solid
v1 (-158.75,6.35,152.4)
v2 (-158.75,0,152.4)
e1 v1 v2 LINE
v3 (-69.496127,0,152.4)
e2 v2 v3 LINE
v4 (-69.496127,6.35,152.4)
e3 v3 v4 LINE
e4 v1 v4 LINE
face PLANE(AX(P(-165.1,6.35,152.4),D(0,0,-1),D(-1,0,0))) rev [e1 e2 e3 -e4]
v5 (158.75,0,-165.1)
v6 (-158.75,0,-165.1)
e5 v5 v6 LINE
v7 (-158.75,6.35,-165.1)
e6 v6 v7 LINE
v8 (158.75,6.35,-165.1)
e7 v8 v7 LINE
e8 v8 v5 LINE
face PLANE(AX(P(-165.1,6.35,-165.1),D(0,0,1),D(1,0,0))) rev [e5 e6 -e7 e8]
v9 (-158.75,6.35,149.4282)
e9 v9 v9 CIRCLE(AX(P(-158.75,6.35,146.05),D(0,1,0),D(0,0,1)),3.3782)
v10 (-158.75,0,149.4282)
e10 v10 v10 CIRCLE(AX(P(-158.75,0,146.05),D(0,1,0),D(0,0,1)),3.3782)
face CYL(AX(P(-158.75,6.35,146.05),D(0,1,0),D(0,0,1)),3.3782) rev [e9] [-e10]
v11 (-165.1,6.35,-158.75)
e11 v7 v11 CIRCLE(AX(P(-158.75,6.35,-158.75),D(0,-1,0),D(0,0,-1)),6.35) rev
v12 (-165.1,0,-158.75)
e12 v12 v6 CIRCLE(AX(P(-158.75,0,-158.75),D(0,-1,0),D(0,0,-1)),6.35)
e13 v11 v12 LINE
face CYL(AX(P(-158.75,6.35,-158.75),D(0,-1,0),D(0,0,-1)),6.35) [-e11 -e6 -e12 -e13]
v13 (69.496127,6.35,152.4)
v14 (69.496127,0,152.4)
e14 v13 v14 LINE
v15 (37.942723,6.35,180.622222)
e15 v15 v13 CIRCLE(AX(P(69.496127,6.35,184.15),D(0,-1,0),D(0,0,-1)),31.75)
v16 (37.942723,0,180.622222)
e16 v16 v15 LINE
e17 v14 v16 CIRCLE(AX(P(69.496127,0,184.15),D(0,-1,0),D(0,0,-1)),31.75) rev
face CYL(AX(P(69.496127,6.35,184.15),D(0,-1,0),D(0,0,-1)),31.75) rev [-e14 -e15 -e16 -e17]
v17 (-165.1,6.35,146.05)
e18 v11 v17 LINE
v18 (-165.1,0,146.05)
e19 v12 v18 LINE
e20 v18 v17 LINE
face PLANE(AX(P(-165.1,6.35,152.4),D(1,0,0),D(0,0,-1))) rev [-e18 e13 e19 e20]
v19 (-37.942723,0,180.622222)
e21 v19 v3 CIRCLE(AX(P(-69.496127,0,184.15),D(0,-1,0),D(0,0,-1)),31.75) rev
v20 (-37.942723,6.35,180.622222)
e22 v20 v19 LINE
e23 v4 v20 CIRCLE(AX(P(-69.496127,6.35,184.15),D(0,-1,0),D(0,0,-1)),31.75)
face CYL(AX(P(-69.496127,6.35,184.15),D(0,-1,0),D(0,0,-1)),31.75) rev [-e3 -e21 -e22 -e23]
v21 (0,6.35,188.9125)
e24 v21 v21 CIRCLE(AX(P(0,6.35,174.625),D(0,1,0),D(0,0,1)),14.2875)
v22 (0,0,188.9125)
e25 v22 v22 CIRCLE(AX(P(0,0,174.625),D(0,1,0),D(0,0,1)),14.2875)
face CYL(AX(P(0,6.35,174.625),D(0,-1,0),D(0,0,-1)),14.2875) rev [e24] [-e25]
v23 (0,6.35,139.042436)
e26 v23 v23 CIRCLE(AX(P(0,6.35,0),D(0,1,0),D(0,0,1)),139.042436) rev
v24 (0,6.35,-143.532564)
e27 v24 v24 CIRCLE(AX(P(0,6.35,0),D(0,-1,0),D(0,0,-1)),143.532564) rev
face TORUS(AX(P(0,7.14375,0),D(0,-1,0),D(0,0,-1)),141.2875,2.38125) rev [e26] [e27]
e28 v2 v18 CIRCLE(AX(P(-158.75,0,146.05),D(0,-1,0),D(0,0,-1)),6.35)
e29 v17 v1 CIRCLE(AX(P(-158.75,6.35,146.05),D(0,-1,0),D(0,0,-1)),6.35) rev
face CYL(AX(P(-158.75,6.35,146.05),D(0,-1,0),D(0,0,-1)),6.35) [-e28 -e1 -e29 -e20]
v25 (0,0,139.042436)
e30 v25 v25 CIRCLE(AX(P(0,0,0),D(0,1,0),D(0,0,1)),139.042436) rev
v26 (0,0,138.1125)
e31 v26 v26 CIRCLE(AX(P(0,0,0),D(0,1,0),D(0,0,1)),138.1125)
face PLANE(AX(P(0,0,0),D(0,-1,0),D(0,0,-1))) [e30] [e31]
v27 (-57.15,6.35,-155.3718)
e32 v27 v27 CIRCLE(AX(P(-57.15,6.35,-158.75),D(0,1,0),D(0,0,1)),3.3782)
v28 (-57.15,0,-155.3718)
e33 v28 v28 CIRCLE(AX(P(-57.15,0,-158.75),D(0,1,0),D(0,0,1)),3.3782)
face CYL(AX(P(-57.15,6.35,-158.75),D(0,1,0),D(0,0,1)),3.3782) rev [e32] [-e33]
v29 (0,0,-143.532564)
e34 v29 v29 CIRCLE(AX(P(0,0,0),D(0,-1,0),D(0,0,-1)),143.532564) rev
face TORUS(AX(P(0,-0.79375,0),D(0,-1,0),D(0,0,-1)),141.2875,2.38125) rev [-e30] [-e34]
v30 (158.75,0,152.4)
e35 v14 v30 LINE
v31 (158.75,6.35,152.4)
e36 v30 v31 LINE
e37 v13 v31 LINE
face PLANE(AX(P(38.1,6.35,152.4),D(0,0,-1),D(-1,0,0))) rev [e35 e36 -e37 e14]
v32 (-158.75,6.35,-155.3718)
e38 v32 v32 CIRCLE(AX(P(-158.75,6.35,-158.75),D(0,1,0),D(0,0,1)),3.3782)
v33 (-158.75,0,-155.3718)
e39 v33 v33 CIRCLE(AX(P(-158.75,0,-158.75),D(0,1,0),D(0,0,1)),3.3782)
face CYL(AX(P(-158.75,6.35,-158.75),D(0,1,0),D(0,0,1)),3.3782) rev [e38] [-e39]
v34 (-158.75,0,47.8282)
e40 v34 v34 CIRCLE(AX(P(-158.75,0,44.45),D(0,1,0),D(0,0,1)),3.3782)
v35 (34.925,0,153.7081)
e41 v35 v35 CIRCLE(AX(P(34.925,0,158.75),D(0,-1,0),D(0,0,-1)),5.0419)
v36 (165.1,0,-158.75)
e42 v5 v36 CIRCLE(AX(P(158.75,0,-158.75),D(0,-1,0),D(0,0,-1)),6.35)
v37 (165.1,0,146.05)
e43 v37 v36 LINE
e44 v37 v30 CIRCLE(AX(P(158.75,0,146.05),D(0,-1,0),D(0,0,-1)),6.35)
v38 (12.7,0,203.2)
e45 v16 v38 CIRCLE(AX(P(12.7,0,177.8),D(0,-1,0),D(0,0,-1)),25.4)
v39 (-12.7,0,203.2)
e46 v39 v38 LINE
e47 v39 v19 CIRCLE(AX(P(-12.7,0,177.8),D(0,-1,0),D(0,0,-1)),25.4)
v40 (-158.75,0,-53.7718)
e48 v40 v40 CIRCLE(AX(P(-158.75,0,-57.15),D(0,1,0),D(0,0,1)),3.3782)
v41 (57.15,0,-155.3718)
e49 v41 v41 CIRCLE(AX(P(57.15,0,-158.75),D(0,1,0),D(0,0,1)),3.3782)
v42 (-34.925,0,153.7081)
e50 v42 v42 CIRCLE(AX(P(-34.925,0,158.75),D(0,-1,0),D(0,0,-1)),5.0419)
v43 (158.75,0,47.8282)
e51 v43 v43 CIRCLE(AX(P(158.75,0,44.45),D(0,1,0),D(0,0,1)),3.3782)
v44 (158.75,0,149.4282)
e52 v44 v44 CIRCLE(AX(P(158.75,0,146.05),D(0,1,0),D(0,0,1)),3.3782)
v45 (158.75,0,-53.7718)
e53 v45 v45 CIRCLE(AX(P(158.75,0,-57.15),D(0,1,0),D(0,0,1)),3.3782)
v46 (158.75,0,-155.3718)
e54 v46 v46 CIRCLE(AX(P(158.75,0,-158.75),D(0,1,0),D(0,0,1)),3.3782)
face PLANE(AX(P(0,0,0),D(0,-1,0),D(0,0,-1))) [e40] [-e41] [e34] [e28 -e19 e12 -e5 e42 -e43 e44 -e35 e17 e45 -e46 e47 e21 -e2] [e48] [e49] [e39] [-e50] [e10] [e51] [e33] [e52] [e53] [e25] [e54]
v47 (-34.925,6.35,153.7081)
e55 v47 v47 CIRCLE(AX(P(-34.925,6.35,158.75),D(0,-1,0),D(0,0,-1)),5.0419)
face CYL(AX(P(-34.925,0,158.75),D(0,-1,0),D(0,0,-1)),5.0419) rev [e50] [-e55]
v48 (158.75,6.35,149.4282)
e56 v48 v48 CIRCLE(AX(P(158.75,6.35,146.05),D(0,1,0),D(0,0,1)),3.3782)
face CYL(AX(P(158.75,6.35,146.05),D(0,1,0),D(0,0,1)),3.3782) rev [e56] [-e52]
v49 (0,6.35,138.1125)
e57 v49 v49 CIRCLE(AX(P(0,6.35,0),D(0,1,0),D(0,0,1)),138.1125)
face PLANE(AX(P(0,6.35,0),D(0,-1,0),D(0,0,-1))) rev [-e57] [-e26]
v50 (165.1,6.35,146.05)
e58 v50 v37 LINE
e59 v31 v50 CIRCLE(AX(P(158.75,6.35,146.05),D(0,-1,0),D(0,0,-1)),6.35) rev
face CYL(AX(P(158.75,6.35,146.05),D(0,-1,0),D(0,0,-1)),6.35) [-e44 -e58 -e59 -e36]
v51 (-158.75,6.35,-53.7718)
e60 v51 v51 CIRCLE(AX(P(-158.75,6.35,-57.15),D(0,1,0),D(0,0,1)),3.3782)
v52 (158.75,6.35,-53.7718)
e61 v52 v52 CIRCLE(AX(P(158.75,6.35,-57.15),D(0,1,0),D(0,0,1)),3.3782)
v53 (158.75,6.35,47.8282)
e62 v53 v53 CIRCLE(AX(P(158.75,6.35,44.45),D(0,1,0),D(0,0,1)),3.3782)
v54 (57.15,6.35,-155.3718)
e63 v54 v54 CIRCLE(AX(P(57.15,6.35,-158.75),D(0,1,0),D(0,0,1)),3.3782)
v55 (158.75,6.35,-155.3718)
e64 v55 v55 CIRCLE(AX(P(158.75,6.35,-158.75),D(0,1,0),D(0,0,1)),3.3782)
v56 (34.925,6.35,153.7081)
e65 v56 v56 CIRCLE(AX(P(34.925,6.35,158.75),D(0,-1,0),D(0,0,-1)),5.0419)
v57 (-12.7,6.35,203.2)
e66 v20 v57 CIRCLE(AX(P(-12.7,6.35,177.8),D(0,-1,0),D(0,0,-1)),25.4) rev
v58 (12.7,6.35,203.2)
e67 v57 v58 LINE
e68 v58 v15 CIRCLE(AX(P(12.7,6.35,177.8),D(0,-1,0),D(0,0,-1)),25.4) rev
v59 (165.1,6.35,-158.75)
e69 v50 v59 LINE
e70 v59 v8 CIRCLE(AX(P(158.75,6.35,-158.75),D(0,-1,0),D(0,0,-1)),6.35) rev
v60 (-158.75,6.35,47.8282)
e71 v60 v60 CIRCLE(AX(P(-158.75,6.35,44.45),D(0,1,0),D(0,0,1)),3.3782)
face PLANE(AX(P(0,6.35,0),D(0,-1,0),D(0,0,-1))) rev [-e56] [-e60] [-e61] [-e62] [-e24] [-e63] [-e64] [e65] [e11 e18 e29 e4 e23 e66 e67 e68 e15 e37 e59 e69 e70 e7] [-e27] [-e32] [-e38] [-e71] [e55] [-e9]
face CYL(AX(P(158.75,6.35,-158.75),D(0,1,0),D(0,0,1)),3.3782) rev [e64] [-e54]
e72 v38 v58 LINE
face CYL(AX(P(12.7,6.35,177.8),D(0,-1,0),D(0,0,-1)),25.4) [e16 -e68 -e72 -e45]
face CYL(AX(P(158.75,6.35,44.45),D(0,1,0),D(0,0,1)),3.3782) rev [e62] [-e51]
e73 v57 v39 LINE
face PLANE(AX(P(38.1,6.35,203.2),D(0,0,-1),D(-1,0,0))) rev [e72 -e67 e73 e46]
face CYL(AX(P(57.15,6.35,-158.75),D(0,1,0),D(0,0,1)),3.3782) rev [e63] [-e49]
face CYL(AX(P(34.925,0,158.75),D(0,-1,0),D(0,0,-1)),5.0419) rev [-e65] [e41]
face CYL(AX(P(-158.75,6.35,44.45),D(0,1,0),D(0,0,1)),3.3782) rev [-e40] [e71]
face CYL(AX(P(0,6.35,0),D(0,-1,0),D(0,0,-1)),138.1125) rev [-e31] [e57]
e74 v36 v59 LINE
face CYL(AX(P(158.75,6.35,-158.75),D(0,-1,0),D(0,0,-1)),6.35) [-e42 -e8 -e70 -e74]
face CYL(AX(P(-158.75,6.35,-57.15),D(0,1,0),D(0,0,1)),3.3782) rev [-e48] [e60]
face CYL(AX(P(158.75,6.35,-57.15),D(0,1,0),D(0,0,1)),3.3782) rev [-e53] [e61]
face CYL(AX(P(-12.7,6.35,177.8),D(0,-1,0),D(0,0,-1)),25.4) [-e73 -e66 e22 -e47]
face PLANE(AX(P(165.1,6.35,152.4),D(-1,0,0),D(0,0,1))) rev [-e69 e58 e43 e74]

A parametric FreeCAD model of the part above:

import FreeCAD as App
import Part
import Sketcher
Q = App.Units.Quantity


def edges_at(feature, points):
    """Names of the edges that pass closest to the given points."""
    edges = feature.Shape.Edges
    near = lambda p: min(range(len(edges)), key=lambda i: edges[i].distToShape(Part.Vertex(*p))[0])
    return sorted({f"Edge{near(p) + 1}" for p in points})


def add_polygon(sketch, points):
    """Adds a closed chain of lines whose ends are joined by coincident constraints."""
    first, n = sketch.GeometryCount, len(points)
    for a, b in zip(points, points[1:] + points[:1]):
        sketch.addGeometry(Part.LineSegment(App.Vector(*a, 0), App.Vector(*b, 0)), False)
    for i in range(n):
        sketch.addConstraint(Sketcher.Constraint("Coincident", first + i, 2, first + (i + 1) % n, 1))

doc = App.newDocument("Part")
body = doc.addObject("PartDesign::Body", "Body")

sketch1 = body.newObject("Sketcher::SketchObject", "Sketch")
sketch1.AttachmentSupport = (doc.getObject("XZ_Plane"), [""])
sketch1.MapMode = "FlatFace"
add_polygon(sketch1, [(38, 152), (165, 152), (165, -165), (-165, -165), (-165, 152), (-38, 152), (-38, 203), (38, 203)])
sketch1.addGeometry(Part.Circle(App.Vector(0, 175, 0), App.Vector(0, 0, 1), 14), False)
sketch1.addGeometry(Part.Circle(App.Vector(0, 0, 0), App.Vector(0, 0, 1), 138), False)
sketch1.addConstraint(Sketcher.Constraint("Horizontal", 0))
sketch1.addConstraint(Sketcher.Constraint("Vertical", 1))
sketch1.addConstraint(Sketcher.Constraint("Horizontal", 2))
sketch1.addConstraint(Sketcher.Constraint("Vertical", 3))
sketch1.addConstraint(Sketcher.Constraint("Horizontal", 4))
sketch1.addConstraint(Sketcher.Constraint("Vertical", 5))
sketch1.addConstraint(Sketcher.Constraint("Horizontal", 6))
sketch1.addConstraint(Sketcher.Constraint("Vertical", 7))
sketch1.addConstraint(Sketcher.Constraint("Coincident", 9, 3, -1, 1))
sketch1.addConstraint(Sketcher.Constraint("Symmetric", 0, 2, 3, 2, -2))
sketch1.addConstraint(Sketcher.Constraint("PointOnObject", 8, 3, -2))
sketch1.addConstraint(Sketcher.Constraint("Equal", 0, 4))
sketch1.addConstraint(Sketcher.Constraint("DistanceX", 0, 1, 0, 2, Q("5 in")))
sketch1.addConstraint(Sketcher.Constraint("DistanceX", 2, 2, 2, 1, Q("13 in")))
sketch1.addConstraint(Sketcher.Constraint("DistanceY", 5, 1, 5, 2, Q("2 in")))
sketch1.addConstraint(Sketcher.Constraint("Diameter", 8, Q("1.125 in")))
sketch1.addConstraint(Sketcher.Constraint("Diameter", 9, Q("10.875 in")))
sketch1.addConstraint(Sketcher.Constraint("DistanceY", 1, 2, 1, 1, Q("12.5 in")))
sketch1.addConstraint(Sketcher.Constraint("DistanceY", -1, 1, 0, 2, Q("6 in")))
sketch1.addConstraint(Sketcher.Constraint("DistanceY", -1, 1, 8, 3, Q("6.875 in")))
pad1 = body.newObject("PartDesign::Pad", "Pad")
pad1.Profile = sketch1
pad1.Length = Q("0.25 in")
pad1.Reversed = True
doc.recompute()

fillet = body.newObject("PartDesign::Fillet", "Fillet")
fillet.Base = (pad1, edges_at(pad1, [(38.1, 3.175, 203.2), (-38.1, 3.175, 203.2)]))
fillet.Radius = Q("1 in")
doc.recompute()

fillet2 = body.newObject("PartDesign::Fillet", "Fillet001")
fillet2.Base = (fillet, edges_at(fillet, [(38.1, 3.175, 152.4), (-38.1, 3.175, 152.4)]))
fillet2.Radius = Q("1.25 in")

sketch2 = body.newObject("Sketcher::SketchObject", "Sketch001")
sketch2.AttachmentSupport = (doc.getObject("XZ_Plane"), [""])
sketch2.MapMode = "FlatFace"
sketch2.addGeometry(Part.Circle(App.Vector(-35, 159, 0), App.Vector(0, 0, 1), 5), False)
sketch2.addGeometry(Part.Circle(App.Vector(35, 159, 0), App.Vector(0, 0, 1), 5), False)
sketch2.addConstraint(Sketcher.Constraint("Equal", 0, 1))
sketch2.addConstraint(Sketcher.Constraint("Symmetric", 0, 3, 1, 3, -2))
sketch2.addConstraint(Sketcher.Constraint("Diameter", 0, Q("0.397 in")))
sketch2.addConstraint(Sketcher.Constraint("DistanceY", -1, 1, 0, 3, Q("6.25 in")))
sketch2.addConstraint(Sketcher.Constraint("DistanceX", 0, 3, 1, 3, Q("2.75 in")))
doc.recompute()
hole = body.newObject("PartDesign::Hole", "Hole")
hole.Profile = sketch2
hole.ThreadType = "None"
hole.Diameter = Q("0.397 in")
hole.DepthType = "ThroughAll"

sketch3 = body.newObject("Sketcher::SketchObject", "Sketch002")
sketch3.AttachmentSupport = (doc.getObject("XZ_Plane"), [""])
sketch3.MapMode = "FlatFace"
sketch3.AttachmentOffset = App.Placement(App.Vector(0, 0, -0.25 * 25.4), App.Rotation())
sketch3.addGeometry(Part.Circle(App.Vector(158.8, -158.8, 0), App.Vector(0, 0, 1), 3.4), False)
sketch3.addGeometry(Part.Circle(App.Vector(-158.8, -158.8, 0), App.Vector(0, 0, 1), 3.4), False)
sketch3.addGeometry(Part.Circle(App.Vector(158.8, -57.1, 0), App.Vector(0, 0, 1), 3.4), False)
sketch3.addGeometry(Part.Circle(App.Vector(-158.8, -57.1, 0), App.Vector(0, 0, 1), 3.4), False)
sketch3.addGeometry(Part.Circle(App.Vector(158.8, 44.5, 0), App.Vector(0, 0, 1), 3.4), False)
sketch3.addGeometry(Part.Circle(App.Vector(-158.8, 44.5, 0), App.Vector(0, 0, 1), 3.4), False)
sketch3.addGeometry(Part.Circle(App.Vector(158.8, 146.1, 0), App.Vector(0, 0, 1), 3.4), False)
sketch3.addGeometry(Part.Circle(App.Vector(-158.8, 146.1, 0), App.Vector(0, 0, 1), 3.4), False)
sketch3.addGeometry(Part.Circle(App.Vector(-57.1, -158.8, 0), App.Vector(0, 0, 1), 3.4), False)
sketch3.addGeometry(Part.Circle(App.Vector(57.1, -158.8, 0), App.Vector(0, 0, 1), 3.4), False)
sketch3.addConstraint(Sketcher.Constraint("Equal", 0, 1))
sketch3.addConstraint(Sketcher.Constraint("Equal", 1, 2))
sketch3.addConstraint(Sketcher.Constraint("Equal", 2, 3))
sketch3.addConstraint(Sketcher.Constraint("Equal", 3, 4))
sketch3.addConstraint(Sketcher.Constraint("Equal", 4, 5))
sketch3.addConstraint(Sketcher.Constraint("Equal", 5, 6))
sketch3.addConstraint(Sketcher.Constraint("Equal", 6, 7))
sketch3.addConstraint(Sketcher.Constraint("Equal", 7, 8))
sketch3.addConstraint(Sketcher.Constraint("Equal", 8, 9))
sketch3.addConstraint(Sketcher.Constraint("Symmetric", 0, 3, 1, 3, -2))
sketch3.addConstraint(Sketcher.Constraint("Symmetric", 2, 3, 3, 3, -2))
sketch3.addConstraint(Sketcher.Constraint("Symmetric", 4, 3, 5, 3, -2))
sketch3.addConstraint(Sketcher.Constraint("Symmetric", 6, 3, 7, 3, -2))
sketch3.addConstraint(Sketcher.Constraint("Symmetric", 8, 3, 9, 3, -2))
sketch3.addConstraint(Sketcher.Constraint("Horizontal", 1, 3, 8, 3))
sketch3.addConstraint(Sketcher.Constraint("Vertical", 0, 3, 2, 3))
sketch3.addConstraint(Sketcher.Constraint("Vertical", 2, 3, 4, 3))
sketch3.addConstraint(Sketcher.Constraint("Vertical", 4, 3, 6, 3))
sketch3.addConstraint(Sketcher.Constraint("Diameter", 0, Q("0.266 in")))
sketch3.addConstraint(Sketcher.Constraint("DistanceY", 0, 3, 2, 3, Q("4 in")))
sketch3.addConstraint(Sketcher.Constraint("DistanceY", 2, 3, 4, 3, Q("4 in")))
sketch3.addConstraint(Sketcher.Constraint("DistanceY", 4, 3, 6, 3, Q("4 in")))
sketch3.addConstraint(Sketcher.Constraint("DistanceX", 1, 3, 8, 3, Q("4 in")))
sketch3.addConstraint(Sketcher.Constraint("DistanceX", 1, 3, 0, 3, Q("12.5 in")))
sketch3.addConstraint(Sketcher.Constraint("DistanceY", 0, 3, -1, 1, Q("6.25 in")))
doc.recompute()
hole2 = body.newObject("PartDesign::Hole", "Hole001")
hole2.Profile = sketch3
hole2.ThreadType = "None"
hole2.Diameter = Q("0.266 in")
hole2.DepthType = "ThroughAll"
hole2.Reversed = True
doc.recompute()

fillet3 = body.newObject("PartDesign::Fillet", "Fillet002")
fillet3.Base = (hole2, edges_at(hole2, [
    (165.1, 3.175, 152.4),
    (-165.1, 3.175, 152.4),
    (-165.1, 3.175, -165.1),
    (165.1, 3.175, -165.1),
]))
fillet3.Radius = Q("0.25 in")

sketch4 = body.newObject("Sketcher::SketchObject", "Sketch003")
sketch4.AttachmentSupport = (doc.getObject("YZ_Plane"), [""])
sketch4.MapMode = "FlatFace"
sketch4.addGeometry(Part.Circle(App.Vector(7.1, 141.3, 0), App.Vector(0, 0, 1), 2.4), False)
sketch4.addGeometry(Part.Circle(App.Vector(-0.8, 141.3, 0), App.Vector(0, 0, 1), 2.4), False)
sketch4.addConstraint(Sketcher.Constraint("Equal", 0, 1))
sketch4.addConstraint(Sketcher.Constraint("Horizontal", 0, 3, 1, 3))
sketch4.addConstraint(Sketcher.Constraint("Diameter", 0, Q("0.1875 in")))
sketch4.addConstraint(Sketcher.Constraint("DistanceX", -1, 1, 0, 3, Q("0.28125 in")))
sketch4.addConstraint(Sketcher.Constraint("DistanceY", -1, 1, 0, 3, Q("5.5625 in")))
sketch4.addConstraint(Sketcher.Constraint("DistanceX", 1, 3, -1, 1, Q("0.03125 in")))
groove = body.newObject("PartDesign::Groove", "Groove")
groove.Profile = sketch4
groove.ReferenceAxis = (sketch4, ["H_Axis"])
groove.Angle = 360

doc.recompute()
